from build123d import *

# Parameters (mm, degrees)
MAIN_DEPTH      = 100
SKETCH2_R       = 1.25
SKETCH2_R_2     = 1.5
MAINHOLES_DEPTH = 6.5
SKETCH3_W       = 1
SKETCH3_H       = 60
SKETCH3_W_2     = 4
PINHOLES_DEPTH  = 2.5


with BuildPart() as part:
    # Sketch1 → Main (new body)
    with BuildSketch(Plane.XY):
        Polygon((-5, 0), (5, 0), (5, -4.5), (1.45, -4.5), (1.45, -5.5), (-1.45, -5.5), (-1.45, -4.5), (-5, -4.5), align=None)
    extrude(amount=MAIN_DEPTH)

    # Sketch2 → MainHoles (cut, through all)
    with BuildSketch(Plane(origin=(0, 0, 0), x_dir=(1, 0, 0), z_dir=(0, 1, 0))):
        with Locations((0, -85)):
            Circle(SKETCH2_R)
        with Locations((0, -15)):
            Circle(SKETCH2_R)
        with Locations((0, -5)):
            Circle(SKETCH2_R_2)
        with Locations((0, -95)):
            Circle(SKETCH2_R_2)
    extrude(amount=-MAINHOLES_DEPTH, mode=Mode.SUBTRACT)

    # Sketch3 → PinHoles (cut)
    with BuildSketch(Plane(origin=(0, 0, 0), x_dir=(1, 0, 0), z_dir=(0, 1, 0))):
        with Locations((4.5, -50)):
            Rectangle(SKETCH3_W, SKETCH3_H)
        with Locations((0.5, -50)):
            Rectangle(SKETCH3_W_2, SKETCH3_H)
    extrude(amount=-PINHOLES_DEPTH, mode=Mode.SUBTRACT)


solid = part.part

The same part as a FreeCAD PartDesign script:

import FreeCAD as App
import Part
import Sketcher
from FreeCAD import Vector
Q = App.Units.Quantity


def add_polygon(sketch, points):
    """Adds a closed chain of lines whose ends are joined by coincident constraints."""
    first, n = sketch.GeometryCount, len(points)
    for a, b in zip(points, points[1:] + points[:1]):
        sketch.addGeometry(Part.LineSegment(App.Vector(*a, 0), App.Vector(*b, 0)), False)
    for i in range(n):
        sketch.addConstraint(Sketcher.Constraint("Coincident", first + i, 2, first + (i + 1) % n, 1))

doc = App.newDocument("Part")
params = doc.addObject("Spreadsheet::Sheet", "Params")
for row, (alias, value) in enumerate([
    ("sketch1_width", "10 mm"),
    ("sketch1_height", "1 mm"),
    ("sketch1_width2", "2.9 mm"),
    ("sketch1_height2", "4.5 mm"),
    ("pad1_length", "100 mm"),
    ("sketch2_diameter", "3 mm"),
    ("sketch2_diameter2", "2.5 mm"),
    ("sketch3_width", "1 mm"),
    ("sketch3_width2", "4 mm"),
    ("sketch3_height", "60 mm"),
    ("pocket2_length", "2.5 mm"),
], start=1):
    params.set(f"A{row}", alias)
    params.set(f"B{row}", "=" + value)
    params.setAlias(f"B{row}", alias)

body = doc.addObject("PartDesign::Body", "Body")

sketch1 = body.newObject("Sketcher::SketchObject", "Sketch")
sketch1.AttachmentSupport = (doc.getObject("XY_Plane"), [""])
sketch1.MapMode = "FlatFace"
add_polygon(sketch1, [(5, 0), (-5, 0), (-5, -4.5), (-1.4, -4.5), (-1.4, -5.5), (1.4, -5.5), (1.4, -4.5), (5, -4.5)])
sketch1.addConstraint([
    Sketcher.Constraint("Horizontal", 0),
    Sketcher.Constraint("Vertical", 1),
    Sketcher.Constraint("Horizontal", 2),
    Sketcher.Constraint("Vertical", 3),
    Sketcher.Constraint("Horizontal", 4),
    Sketcher.Constraint("Vertical", 5),
    Sketcher.Constraint("Horizontal", 6),
    Sketcher.Constraint("Vertical", 7),
    Sketcher.Constraint("Symmetric", 0, 2, 7, 2, -1, 1),
    Sketcher.Constraint("Symmetric", 2, 2, 5, 2, -2),
    Sketcher.Constraint("DistanceX", 0, 2, 0, 1, Q("10 mm")),
    Sketcher.Constraint("DistanceY", 3, 2, 3, 1, Q("1 mm")),
    Sketcher.Constraint("DistanceX", 4, 1, 4, 2, Q("2.9 mm")),
    Sketcher.Constraint("DistanceY", 1, 2, 1, 1, Q("4.5 mm")),
])
sketch1.setExpression("Constraints[18]", "Params.sketch1_width")
sketch1.setExpression("Constraints[19]", "Params.sketch1_height")
sketch1.setExpression("Constraints[20]", "Params.sketch1_width2")
sketch1.setExpression("Constraints[21]", "Params.sketch1_height2")
pad1 = body.newObject("PartDesign::Pad", "Pad")
pad1.Profile = sketch1
pad1.setExpression("Length", "Params.pad1_length")

sketch2 = body.newObject("Sketcher::SketchObject", "Sketch001")
sketch2.AttachmentSupport = (doc.getObject("XZ_Plane"), [""])
sketch2.MapMode = "FlatFace"
sketch2.addGeometry([
    Part.Circle(Vector(0, 85, 0), Vector(0, 0, 1), 1.2),
    Part.Circle(Vector(0, 15, 0), Vector(0, 0, 1), 1.2),
    Part.Circle(Vector(0, 5, 0), Vector(0, 0, 1), 1.5),
    Part.Circle(Vector(0, 95, 0), Vector(0, 0, 1), 1.5),
], False)
sketch2.addConstraint([
    Sketcher.Constraint("Equal", 0, 1),
    Sketcher.Constraint("Equal", 2, 3),
    Sketcher.Constraint("PointOnObject", 0, 3, -2),
    Sketcher.Constraint("PointOnObject", 1, 3, -2),
    Sketcher.Constraint("PointOnObject", 2, 3, -2),
    Sketcher.Constraint("PointOnObject", 3, 3, -2),
    Sketcher.Constraint("Diameter", 2, Q("3 mm")),
    Sketcher.Constraint("Diameter", 0, Q("2.5 mm")),
    Sketcher.Constraint("DistanceY", -1, 1, 0, 3, Q("85 mm")),
    Sketcher.Constraint("DistanceY", -1, 1, 1, 3, Q("15 mm")),
    Sketcher.Constraint("DistanceY", -1, 1, 2, 3, Q("5 mm")),
    Sketcher.Constraint("DistanceY", -1, 1, 3, 3, Q("95 mm")),
])
sketch2.setExpression("Constraints[6]", "Params.sketch2_diameter")
sketch2.setExpression("Constraints[7]", "Params.sketch2_diameter2")
pocket1 = body.newObject("PartDesign::Pocket", "Pocket")
pocket1.Profile = sketch2
pocket1.Type = "ThroughAll"
pocket1.Reversed = True

sketch3 = body.newObject("Sketcher::SketchObject", "Sketch002")
sketch3.AttachmentSupport = (doc.getObject("XZ_Plane"), [""])
sketch3.MapMode = "FlatFace"
add_polygon(sketch3, [(4, 20), (4, 80), (5, 80), (5, 20)])
add_polygon(sketch3, [(-1.5, 20), (-1.5, 80), (2.5, 80), (2.5, 20)])
sketch3.addConstraint([
    Sketcher.Constraint("Vertical", 0),
    Sketcher.Constraint("Horizontal", 1),
    Sketcher.Constraint("Vertical", 2),
    Sketcher.Constraint("Horizontal", 3),
    Sketcher.Constraint("Vertical", 4),
    Sketcher.Constraint("Horizontal", 5),
    Sketcher.Constraint("Vertical", 6),
    Sketcher.Constraint("Horizontal", 7),
    Sketcher.Constraint("Horizontal", 1, 2, 4, 2),
    Sketcher.Constraint("Horizontal", 3, 2, 6, 2),
    Sketcher.Constraint("DistanceX", 1, 1, 1, 2, Q("1 mm")),
    Sketcher.Constraint("DistanceX", 5, 1, 5, 2, Q("4 mm")),
    Sketcher.Constraint("DistanceY", 0, 1, 0, 2, Q("60 mm")),
    Sketcher.Constraint("DistanceX", -1, 1, 0, 2, Q("4 mm")),
    Sketcher.Constraint("DistanceY", -1, 1, 0, 2, Q("80 mm")),
    Sketcher.Constraint("DistanceX", 4, 2, -1, 1, Q("1.5 mm")),
])
sketch3.setExpression("Constraints[18]", "Params.sketch3_width")
sketch3.setExpression("Constraints[19]", "Params.sketch3_width2")
sketch3.setExpression("Constraints[20]", "Params.sketch3_height")
pocket2 = body.newObject("PartDesign::Pocket", "Pocket001")
pocket2.Profile = sketch3
pocket2.setExpression("Length", "Params.pocket2_length")
pocket2.Reversed = True

doc.recompute()
